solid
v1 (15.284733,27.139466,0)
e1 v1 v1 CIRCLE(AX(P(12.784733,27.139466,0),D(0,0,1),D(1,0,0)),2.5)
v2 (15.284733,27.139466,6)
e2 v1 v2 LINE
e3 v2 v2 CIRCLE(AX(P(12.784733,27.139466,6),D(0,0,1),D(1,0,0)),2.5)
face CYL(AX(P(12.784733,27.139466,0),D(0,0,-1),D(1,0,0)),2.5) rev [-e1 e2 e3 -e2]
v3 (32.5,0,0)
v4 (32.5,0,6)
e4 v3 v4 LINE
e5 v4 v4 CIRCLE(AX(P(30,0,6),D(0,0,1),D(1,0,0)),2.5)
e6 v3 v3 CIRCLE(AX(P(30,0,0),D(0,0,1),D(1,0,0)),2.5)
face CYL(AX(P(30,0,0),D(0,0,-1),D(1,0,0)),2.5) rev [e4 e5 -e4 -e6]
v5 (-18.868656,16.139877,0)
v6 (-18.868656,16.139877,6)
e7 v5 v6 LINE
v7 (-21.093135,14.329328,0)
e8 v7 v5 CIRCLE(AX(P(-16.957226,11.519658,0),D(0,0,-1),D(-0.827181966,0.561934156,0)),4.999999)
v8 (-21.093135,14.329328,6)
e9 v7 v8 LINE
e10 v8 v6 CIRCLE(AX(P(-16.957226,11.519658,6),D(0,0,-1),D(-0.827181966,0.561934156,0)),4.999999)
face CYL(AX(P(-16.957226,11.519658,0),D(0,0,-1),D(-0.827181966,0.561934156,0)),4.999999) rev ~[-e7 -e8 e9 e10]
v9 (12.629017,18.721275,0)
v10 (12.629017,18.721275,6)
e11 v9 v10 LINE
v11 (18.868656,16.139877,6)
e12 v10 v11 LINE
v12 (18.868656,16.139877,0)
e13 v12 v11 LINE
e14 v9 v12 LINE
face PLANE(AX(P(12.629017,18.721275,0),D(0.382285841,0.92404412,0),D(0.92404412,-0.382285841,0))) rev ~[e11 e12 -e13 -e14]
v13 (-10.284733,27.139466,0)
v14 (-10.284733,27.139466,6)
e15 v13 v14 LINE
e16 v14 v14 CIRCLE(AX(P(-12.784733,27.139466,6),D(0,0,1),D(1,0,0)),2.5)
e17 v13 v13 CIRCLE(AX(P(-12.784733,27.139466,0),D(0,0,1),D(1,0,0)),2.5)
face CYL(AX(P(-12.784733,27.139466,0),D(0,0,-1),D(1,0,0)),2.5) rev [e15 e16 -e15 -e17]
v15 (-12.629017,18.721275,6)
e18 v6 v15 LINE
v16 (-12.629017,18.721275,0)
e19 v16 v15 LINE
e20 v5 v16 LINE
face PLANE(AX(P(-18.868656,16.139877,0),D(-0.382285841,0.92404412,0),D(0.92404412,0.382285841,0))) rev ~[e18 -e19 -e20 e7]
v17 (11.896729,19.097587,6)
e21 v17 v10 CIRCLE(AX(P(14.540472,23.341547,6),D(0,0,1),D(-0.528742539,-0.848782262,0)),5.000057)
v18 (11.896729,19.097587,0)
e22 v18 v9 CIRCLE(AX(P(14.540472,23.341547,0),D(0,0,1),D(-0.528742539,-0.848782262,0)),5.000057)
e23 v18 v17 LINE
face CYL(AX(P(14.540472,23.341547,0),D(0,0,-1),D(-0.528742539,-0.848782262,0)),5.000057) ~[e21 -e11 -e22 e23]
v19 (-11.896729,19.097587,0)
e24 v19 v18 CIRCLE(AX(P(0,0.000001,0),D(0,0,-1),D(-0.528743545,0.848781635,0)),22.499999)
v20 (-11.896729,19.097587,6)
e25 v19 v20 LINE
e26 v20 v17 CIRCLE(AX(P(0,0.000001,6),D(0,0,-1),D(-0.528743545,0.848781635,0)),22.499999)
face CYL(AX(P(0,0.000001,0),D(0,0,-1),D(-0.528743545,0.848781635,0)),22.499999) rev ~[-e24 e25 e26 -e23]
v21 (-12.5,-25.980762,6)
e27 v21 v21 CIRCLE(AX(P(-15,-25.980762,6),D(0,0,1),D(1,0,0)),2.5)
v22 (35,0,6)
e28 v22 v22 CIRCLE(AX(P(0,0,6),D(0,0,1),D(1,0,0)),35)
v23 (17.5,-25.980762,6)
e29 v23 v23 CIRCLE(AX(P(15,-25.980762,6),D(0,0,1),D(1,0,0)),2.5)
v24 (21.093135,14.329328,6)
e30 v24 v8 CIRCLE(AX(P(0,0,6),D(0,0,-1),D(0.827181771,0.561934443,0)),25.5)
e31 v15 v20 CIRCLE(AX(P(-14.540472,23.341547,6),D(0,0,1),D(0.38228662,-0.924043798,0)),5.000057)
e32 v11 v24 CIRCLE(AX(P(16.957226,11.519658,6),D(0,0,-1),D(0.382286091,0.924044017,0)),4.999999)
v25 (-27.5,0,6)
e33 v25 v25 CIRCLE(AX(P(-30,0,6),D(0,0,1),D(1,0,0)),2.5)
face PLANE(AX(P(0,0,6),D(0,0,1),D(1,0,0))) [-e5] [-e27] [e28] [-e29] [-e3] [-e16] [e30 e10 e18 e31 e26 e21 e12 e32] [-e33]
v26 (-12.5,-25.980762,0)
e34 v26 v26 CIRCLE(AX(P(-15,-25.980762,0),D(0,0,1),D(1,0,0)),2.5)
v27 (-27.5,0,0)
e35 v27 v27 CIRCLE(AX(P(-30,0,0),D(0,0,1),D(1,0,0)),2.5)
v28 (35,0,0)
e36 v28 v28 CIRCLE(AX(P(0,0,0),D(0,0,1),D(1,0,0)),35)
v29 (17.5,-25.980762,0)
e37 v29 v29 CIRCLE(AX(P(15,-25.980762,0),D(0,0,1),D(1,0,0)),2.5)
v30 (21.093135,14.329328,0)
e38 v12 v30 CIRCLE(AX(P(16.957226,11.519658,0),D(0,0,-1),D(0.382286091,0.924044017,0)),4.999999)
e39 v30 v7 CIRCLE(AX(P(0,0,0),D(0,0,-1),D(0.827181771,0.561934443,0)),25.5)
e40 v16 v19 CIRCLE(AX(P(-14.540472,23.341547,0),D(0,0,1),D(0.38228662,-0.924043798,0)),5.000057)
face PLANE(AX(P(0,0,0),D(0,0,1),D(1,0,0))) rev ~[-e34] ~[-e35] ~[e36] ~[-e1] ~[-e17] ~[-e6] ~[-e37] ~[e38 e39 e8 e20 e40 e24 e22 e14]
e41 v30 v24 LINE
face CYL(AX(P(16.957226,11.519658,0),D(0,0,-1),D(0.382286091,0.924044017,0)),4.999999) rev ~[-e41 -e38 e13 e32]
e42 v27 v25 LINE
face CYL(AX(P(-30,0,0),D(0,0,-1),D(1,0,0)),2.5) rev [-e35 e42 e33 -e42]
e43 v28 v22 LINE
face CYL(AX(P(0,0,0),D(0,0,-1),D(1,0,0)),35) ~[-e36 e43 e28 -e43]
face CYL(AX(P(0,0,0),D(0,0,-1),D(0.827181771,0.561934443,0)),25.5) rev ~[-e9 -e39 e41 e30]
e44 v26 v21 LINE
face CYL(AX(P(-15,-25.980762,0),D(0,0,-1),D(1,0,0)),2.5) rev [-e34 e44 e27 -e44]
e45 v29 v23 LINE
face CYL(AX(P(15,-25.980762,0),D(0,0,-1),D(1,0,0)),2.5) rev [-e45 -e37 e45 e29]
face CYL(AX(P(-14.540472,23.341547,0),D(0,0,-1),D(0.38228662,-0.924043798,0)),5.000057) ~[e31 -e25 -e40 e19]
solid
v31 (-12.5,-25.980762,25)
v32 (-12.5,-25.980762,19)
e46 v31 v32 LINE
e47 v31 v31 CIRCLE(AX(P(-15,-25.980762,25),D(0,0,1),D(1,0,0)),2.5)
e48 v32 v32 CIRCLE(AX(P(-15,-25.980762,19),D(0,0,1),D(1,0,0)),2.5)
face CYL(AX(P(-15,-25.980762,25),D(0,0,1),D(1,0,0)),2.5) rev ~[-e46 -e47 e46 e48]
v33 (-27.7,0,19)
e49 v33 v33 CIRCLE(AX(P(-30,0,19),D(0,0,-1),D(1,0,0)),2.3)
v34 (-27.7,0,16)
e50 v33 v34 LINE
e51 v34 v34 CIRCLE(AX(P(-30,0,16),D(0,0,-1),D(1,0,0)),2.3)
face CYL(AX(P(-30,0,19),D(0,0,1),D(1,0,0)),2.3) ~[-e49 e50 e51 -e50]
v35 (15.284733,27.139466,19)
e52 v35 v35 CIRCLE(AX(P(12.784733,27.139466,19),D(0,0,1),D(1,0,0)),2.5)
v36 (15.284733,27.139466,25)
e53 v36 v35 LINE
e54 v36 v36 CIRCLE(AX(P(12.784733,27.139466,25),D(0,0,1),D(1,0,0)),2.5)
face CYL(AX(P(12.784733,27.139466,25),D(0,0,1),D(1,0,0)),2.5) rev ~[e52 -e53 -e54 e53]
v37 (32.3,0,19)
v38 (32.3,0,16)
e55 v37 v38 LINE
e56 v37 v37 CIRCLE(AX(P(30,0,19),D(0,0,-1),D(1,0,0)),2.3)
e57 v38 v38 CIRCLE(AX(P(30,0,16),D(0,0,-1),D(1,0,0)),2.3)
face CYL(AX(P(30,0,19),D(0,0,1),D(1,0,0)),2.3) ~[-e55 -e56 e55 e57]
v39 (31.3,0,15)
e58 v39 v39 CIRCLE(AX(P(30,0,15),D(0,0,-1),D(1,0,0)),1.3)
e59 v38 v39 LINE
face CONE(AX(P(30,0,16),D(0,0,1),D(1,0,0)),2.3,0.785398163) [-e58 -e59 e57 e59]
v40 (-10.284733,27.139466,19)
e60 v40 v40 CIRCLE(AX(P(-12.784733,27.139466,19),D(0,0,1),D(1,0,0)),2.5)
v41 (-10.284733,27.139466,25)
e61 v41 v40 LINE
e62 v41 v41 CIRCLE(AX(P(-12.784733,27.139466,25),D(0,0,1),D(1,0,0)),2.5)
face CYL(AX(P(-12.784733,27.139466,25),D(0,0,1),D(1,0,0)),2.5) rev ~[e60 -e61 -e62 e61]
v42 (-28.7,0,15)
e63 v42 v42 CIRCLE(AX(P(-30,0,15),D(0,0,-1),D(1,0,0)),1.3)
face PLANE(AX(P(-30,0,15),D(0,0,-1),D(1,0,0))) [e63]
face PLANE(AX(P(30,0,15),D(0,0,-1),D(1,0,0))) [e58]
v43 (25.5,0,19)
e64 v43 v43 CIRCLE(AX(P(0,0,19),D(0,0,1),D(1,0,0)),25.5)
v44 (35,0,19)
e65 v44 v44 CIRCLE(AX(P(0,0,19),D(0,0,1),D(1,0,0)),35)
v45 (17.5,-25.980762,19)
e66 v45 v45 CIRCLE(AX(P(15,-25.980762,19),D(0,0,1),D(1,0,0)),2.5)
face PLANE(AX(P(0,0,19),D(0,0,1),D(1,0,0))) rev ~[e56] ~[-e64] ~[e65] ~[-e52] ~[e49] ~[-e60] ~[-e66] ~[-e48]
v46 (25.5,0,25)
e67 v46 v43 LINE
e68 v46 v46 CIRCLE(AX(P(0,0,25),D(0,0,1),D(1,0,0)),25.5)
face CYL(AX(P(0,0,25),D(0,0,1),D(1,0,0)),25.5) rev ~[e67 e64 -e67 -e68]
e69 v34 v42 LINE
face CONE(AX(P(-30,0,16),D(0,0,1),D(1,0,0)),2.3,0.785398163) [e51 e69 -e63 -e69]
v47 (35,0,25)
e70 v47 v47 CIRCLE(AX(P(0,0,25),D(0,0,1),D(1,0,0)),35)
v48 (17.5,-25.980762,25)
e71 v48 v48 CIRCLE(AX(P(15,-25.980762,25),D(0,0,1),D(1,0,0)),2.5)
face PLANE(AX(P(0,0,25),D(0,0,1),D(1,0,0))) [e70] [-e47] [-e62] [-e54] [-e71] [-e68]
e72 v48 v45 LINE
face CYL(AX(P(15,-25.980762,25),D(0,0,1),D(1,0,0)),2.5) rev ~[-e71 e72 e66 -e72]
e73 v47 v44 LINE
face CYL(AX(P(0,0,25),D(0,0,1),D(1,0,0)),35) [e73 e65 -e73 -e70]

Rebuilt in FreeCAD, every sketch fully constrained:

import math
import FreeCAD as App
import Part
import Sketcher
from FreeCAD import Vector
Q = App.Units.Quantity


def edges_at(feature, points):
    """Names of the edges that pass closest to the given points."""
    edges = feature.Shape.Edges
    near = lambda p: min(range(len(edges)), key=lambda i: edges[i].distToShape(Part.Vertex(*p))[0])
    return sorted({f"Edge{near(p) + 1}" for p in points})

doc = App.newDocument("Part")
body = doc.addObject("PartDesign::Body", "Body")

# Sketch on XY plane
sketch1 = body.newObject("Sketcher::SketchObject", "Sketch")
sketch1.AttachmentSupport = (doc.getObject("XY_Plane"), [""])
sketch1.MapMode = "FlatFace"
sketch1.addGeometry([
    Part.Circle(Vector(0, 0, 0), Vector(0, 0, 1), 35),  # 0
    Part.Circle(Vector(-15, -26, 0), Vector(0, 0, 1), 2.5),  # 1
    Part.Circle(Vector(-30, 0, 0), Vector(0, 0, 1), 2.5),  # 2
    Part.Circle(Vector(15, -26, 0), Vector(0, 0, 1), 2.5),  # 3
    Part.ArcOfCircle(Part.Circle(Vector(17, 11.5, 0), Vector(0, 0, 1), 5), math.radians(34), math.radians(68)),  # 4
    Part.ArcOfCircle(Part.Circle(Vector(0, 0, 0), Vector(0, 0, 1), 25.5), math.radians(146), math.radians(394)),  # 5
    Part.ArcOfCircle(Part.Circle(Vector(-17, 11.5, 0), Vector(0, 0, 1), 5), math.radians(112), math.radians(146)),  # 6
    Part.LineSegment(Vector(-18.9, 16.1, 0), Vector(-12.6, 18.7, 0)),  # 7
    Part.ArcOfCircle(Part.Circle(Vector(-14.5, 23.3, 0), Vector(0, 0, 1), 5), math.radians(-67.52), math.radians(-58.08)),  # 8
    Part.ArcOfCircle(Part.Circle(Vector(0, 0, 0), Vector(0, 0, 1), 22.5), math.radians(58), math.radians(122)),  # 9
    Part.ArcOfCircle(Part.Circle(Vector(14.5, 23.3, 0), Vector(0, 0, 1), 5), math.radians(-121.92), math.radians(-112.48)),  # 10
    Part.LineSegment(Vector(12.6, 18.7, 0), Vector(18.9, 16.1, 0)),  # 11
    Part.Circle(Vector(30, 0, 0), Vector(0, 0, 1), 2.5),  # 12
    Part.Circle(Vector(-12.8, 27.1, 0), Vector(0, 0, 1), 2.5),  # 13
    Part.Circle(Vector(12.8, 27.1, 0), Vector(0, 0, 1), 2.5),  # 14
], False)
sketch1.addConstraint([
    Sketcher.Constraint("Tangent", 4, 1, 5, 2),
    Sketcher.Constraint("Tangent", 5, 1, 6, 2),
    Sketcher.Constraint("Tangent", 6, 1, 7, 1),
    Sketcher.Constraint("Tangent", 7, 2, 8, 1),
    Sketcher.Constraint("Tangent", 8, 2, 9, 2),
    Sketcher.Constraint("Tangent", 9, 1, 10, 1),
    Sketcher.Constraint("Tangent", 10, 2, 11, 1),
    Sketcher.Constraint("Tangent", 11, 2, 4, 2),
    Sketcher.Constraint("Coincident", 0, 3, -1, 1),
    Sketcher.Constraint("Coincident", 5, 3, -1, 1),
    Sketcher.Constraint("Coincident", 9, 3, -1, 1),
    Sketcher.Constraint("Equal", 1, 2),
    Sketcher.Constraint("Equal", 2, 3),
    Sketcher.Constraint("Equal", 4, 6),
    Sketcher.Constraint("Equal", 8, 10),
    Sketcher.Constraint("Equal", 3, 12),
    Sketcher.Constraint("Equal", 12, 13),
    Sketcher.Constraint("Equal", 13, 14),
    Sketcher.Constraint("Symmetric", 2, 3, 12, 3, -1, 1),
    Sketcher.Constraint("Symmetric", 1, 3, 3, 3, -2),
    Sketcher.Constraint("Symmetric", 13, 3, 14, 3, -2),
    Sketcher.Constraint("Symmetric", 7, 2, 10, 2, -2),
    Sketcher.Constraint("PointOnObject", 2, 3, -1),
    Sketcher.Constraint("Diameter", 0, Q("70 mm")),
    Sketcher.Constraint("Diameter", 1, Q("5 mm")),
    Sketcher.Constraint("Radius", 4, Q("4.999999 mm")),
    Sketcher.Constraint("Radius", 5, Q("25.5 mm")),
    Sketcher.Constraint("Radius", 9, Q("22.499999 mm")),
    Sketcher.Constraint("DistanceX", 1, 3, -1, 1, Q("15 mm")),
    Sketcher.Constraint("DistanceX", 2, 3, -1, 1, Q("30 mm")),
    Sketcher.Constraint("Radius", 8, Q("5.000057 mm")),
    Sketcher.Constraint("DistanceX", 5, 1, 13, 3, Q("8.308402 mm")),
    Sketcher.Constraint("DistanceY", 11, 2, 10, 2, Q("2.581398 mm")),
    Sketcher.Constraint("DistanceY", 1, 3, -1, 1, Q("25.980762 mm")),
    Sketcher.Constraint("DistanceY", -1, 1, 4, 1, Q("14.329328 mm")),
    Sketcher.Constraint("DistanceY", 8, 3, 13, 3, Q("3.797919 mm")),
])
pad1 = body.newObject("PartDesign::Pad", "Pad")
pad1.Profile = sketch1
pad1.Length = 6
body2 = doc.addObject("PartDesign::Body", "Body001")

# Sketch on XY plane
sketch2 = body2.newObject("Sketcher::SketchObject", "Sketch001")
sketch2.AttachmentSupport = (doc.getObject("XY_Plane001"), [""])
sketch2.MapMode = "FlatFace"
sketch2.AttachmentOffset = App.Placement(Vector(0, 0, 25), App.Rotation())
sketch2.addGeometry([
    Part.Circle(Vector(0, 0, 0), Vector(0, 0, 1), 35),  # 0
    Part.Circle(Vector(-15, -26, 0), Vector(0, 0, 1), 2.5),  # 1
    Part.Circle(Vector(15, -26, 0), Vector(0, 0, 1), 2.5),  # 2
    Part.Circle(Vector(0, 0, 0), Vector(0, 0, 1), 25.5),  # 3
    Part.Circle(Vector(-12.8, 27.1, 0), Vector(0, 0, 1), 2.5),  # 4
    Part.Circle(Vector(12.8, 27.1, 0), Vector(0, 0, 1), 2.5),  # 5
], False)
sketch2.addConstraint([
    Sketcher.Constraint("Coincident", 0, 3, -1, 1),
    Sketcher.Constraint("Coincident", 3, 3, -1, 1),
    Sketcher.Constraint("Equal", 1, 2),
    Sketcher.Constraint("Equal", 2, 4),
    Sketcher.Constraint("Equal", 4, 5),
    Sketcher.Constraint("Symmetric", 1, 3, 2, 3, -2),
    Sketcher.Constraint("Symmetric", 4, 3, 5, 3, -2),
    Sketcher.Constraint("Diameter", 0, Q("70 mm")),
    Sketcher.Constraint("Diameter", 1, Q("5 mm")),
    Sketcher.Constraint("Diameter", 3, Q("51 mm")),
    Sketcher.Constraint("DistanceX", 1, 3, -1, 1, Q("15 mm")),
    Sketcher.Constraint("DistanceY", 1, 3, -1, 1, Q("25.980762 mm")),
    Sketcher.Constraint("DistanceX", 4, 3, -1, 1, Q("12.784733 mm")),
    Sketcher.Constraint("DistanceY", -1, 1, 4, 3, Q("27.139466 mm")),
])
pad2 = body2.newObject("PartDesign::Pad", "Pad001")
pad2.Profile = sketch2
pad2.Length = 6
pad2.Reversed = True

# Sketch on XY plane
sketch3 = body2.newObject("Sketcher::SketchObject", "Sketch002")
sketch3.AttachmentSupport = (doc.getObject("XY_Plane001"), [""])
sketch3.MapMode = "FlatFace"
sketch3.AttachmentOffset = App.Placement(Vector(0, 0, 19), App.Rotation())
sketch3.addGeometry([
    Part.Circle(Vector(-30, 0, 0), Vector(0, 0, 1), 2.3),
    Part.Circle(Vector(30, 0, 0), Vector(0, 0, 1), 2.3),
], False)
sketch3.addConstraint([
    Sketcher.Constraint("Equal", 0, 1),
    Sketcher.Constraint("Symmetric", 0, 3, 1, 3, -1, 1),
    Sketcher.Constraint("PointOnObject", 0, 3, -1),
    Sketcher.Constraint("Diameter", 0, Q("4.6 mm")),
    Sketcher.Constraint("DistanceX", 0, 3, -1, 1, Q("30 mm")),
])
pad3 = body2.newObject("PartDesign::Pad", "Pad002")
pad3.Profile = sketch3
pad3.Length = 4
pad3.Reversed = True
doc.recompute()

chamfer = body2.newObject("PartDesign::Chamfer", "Chamfer")
chamfer.Base = (pad3, edges_at(pad3, [(-32.3, 0, 15), (27.7, 0, 15)]))
chamfer.Size = 1

doc.recompute()
